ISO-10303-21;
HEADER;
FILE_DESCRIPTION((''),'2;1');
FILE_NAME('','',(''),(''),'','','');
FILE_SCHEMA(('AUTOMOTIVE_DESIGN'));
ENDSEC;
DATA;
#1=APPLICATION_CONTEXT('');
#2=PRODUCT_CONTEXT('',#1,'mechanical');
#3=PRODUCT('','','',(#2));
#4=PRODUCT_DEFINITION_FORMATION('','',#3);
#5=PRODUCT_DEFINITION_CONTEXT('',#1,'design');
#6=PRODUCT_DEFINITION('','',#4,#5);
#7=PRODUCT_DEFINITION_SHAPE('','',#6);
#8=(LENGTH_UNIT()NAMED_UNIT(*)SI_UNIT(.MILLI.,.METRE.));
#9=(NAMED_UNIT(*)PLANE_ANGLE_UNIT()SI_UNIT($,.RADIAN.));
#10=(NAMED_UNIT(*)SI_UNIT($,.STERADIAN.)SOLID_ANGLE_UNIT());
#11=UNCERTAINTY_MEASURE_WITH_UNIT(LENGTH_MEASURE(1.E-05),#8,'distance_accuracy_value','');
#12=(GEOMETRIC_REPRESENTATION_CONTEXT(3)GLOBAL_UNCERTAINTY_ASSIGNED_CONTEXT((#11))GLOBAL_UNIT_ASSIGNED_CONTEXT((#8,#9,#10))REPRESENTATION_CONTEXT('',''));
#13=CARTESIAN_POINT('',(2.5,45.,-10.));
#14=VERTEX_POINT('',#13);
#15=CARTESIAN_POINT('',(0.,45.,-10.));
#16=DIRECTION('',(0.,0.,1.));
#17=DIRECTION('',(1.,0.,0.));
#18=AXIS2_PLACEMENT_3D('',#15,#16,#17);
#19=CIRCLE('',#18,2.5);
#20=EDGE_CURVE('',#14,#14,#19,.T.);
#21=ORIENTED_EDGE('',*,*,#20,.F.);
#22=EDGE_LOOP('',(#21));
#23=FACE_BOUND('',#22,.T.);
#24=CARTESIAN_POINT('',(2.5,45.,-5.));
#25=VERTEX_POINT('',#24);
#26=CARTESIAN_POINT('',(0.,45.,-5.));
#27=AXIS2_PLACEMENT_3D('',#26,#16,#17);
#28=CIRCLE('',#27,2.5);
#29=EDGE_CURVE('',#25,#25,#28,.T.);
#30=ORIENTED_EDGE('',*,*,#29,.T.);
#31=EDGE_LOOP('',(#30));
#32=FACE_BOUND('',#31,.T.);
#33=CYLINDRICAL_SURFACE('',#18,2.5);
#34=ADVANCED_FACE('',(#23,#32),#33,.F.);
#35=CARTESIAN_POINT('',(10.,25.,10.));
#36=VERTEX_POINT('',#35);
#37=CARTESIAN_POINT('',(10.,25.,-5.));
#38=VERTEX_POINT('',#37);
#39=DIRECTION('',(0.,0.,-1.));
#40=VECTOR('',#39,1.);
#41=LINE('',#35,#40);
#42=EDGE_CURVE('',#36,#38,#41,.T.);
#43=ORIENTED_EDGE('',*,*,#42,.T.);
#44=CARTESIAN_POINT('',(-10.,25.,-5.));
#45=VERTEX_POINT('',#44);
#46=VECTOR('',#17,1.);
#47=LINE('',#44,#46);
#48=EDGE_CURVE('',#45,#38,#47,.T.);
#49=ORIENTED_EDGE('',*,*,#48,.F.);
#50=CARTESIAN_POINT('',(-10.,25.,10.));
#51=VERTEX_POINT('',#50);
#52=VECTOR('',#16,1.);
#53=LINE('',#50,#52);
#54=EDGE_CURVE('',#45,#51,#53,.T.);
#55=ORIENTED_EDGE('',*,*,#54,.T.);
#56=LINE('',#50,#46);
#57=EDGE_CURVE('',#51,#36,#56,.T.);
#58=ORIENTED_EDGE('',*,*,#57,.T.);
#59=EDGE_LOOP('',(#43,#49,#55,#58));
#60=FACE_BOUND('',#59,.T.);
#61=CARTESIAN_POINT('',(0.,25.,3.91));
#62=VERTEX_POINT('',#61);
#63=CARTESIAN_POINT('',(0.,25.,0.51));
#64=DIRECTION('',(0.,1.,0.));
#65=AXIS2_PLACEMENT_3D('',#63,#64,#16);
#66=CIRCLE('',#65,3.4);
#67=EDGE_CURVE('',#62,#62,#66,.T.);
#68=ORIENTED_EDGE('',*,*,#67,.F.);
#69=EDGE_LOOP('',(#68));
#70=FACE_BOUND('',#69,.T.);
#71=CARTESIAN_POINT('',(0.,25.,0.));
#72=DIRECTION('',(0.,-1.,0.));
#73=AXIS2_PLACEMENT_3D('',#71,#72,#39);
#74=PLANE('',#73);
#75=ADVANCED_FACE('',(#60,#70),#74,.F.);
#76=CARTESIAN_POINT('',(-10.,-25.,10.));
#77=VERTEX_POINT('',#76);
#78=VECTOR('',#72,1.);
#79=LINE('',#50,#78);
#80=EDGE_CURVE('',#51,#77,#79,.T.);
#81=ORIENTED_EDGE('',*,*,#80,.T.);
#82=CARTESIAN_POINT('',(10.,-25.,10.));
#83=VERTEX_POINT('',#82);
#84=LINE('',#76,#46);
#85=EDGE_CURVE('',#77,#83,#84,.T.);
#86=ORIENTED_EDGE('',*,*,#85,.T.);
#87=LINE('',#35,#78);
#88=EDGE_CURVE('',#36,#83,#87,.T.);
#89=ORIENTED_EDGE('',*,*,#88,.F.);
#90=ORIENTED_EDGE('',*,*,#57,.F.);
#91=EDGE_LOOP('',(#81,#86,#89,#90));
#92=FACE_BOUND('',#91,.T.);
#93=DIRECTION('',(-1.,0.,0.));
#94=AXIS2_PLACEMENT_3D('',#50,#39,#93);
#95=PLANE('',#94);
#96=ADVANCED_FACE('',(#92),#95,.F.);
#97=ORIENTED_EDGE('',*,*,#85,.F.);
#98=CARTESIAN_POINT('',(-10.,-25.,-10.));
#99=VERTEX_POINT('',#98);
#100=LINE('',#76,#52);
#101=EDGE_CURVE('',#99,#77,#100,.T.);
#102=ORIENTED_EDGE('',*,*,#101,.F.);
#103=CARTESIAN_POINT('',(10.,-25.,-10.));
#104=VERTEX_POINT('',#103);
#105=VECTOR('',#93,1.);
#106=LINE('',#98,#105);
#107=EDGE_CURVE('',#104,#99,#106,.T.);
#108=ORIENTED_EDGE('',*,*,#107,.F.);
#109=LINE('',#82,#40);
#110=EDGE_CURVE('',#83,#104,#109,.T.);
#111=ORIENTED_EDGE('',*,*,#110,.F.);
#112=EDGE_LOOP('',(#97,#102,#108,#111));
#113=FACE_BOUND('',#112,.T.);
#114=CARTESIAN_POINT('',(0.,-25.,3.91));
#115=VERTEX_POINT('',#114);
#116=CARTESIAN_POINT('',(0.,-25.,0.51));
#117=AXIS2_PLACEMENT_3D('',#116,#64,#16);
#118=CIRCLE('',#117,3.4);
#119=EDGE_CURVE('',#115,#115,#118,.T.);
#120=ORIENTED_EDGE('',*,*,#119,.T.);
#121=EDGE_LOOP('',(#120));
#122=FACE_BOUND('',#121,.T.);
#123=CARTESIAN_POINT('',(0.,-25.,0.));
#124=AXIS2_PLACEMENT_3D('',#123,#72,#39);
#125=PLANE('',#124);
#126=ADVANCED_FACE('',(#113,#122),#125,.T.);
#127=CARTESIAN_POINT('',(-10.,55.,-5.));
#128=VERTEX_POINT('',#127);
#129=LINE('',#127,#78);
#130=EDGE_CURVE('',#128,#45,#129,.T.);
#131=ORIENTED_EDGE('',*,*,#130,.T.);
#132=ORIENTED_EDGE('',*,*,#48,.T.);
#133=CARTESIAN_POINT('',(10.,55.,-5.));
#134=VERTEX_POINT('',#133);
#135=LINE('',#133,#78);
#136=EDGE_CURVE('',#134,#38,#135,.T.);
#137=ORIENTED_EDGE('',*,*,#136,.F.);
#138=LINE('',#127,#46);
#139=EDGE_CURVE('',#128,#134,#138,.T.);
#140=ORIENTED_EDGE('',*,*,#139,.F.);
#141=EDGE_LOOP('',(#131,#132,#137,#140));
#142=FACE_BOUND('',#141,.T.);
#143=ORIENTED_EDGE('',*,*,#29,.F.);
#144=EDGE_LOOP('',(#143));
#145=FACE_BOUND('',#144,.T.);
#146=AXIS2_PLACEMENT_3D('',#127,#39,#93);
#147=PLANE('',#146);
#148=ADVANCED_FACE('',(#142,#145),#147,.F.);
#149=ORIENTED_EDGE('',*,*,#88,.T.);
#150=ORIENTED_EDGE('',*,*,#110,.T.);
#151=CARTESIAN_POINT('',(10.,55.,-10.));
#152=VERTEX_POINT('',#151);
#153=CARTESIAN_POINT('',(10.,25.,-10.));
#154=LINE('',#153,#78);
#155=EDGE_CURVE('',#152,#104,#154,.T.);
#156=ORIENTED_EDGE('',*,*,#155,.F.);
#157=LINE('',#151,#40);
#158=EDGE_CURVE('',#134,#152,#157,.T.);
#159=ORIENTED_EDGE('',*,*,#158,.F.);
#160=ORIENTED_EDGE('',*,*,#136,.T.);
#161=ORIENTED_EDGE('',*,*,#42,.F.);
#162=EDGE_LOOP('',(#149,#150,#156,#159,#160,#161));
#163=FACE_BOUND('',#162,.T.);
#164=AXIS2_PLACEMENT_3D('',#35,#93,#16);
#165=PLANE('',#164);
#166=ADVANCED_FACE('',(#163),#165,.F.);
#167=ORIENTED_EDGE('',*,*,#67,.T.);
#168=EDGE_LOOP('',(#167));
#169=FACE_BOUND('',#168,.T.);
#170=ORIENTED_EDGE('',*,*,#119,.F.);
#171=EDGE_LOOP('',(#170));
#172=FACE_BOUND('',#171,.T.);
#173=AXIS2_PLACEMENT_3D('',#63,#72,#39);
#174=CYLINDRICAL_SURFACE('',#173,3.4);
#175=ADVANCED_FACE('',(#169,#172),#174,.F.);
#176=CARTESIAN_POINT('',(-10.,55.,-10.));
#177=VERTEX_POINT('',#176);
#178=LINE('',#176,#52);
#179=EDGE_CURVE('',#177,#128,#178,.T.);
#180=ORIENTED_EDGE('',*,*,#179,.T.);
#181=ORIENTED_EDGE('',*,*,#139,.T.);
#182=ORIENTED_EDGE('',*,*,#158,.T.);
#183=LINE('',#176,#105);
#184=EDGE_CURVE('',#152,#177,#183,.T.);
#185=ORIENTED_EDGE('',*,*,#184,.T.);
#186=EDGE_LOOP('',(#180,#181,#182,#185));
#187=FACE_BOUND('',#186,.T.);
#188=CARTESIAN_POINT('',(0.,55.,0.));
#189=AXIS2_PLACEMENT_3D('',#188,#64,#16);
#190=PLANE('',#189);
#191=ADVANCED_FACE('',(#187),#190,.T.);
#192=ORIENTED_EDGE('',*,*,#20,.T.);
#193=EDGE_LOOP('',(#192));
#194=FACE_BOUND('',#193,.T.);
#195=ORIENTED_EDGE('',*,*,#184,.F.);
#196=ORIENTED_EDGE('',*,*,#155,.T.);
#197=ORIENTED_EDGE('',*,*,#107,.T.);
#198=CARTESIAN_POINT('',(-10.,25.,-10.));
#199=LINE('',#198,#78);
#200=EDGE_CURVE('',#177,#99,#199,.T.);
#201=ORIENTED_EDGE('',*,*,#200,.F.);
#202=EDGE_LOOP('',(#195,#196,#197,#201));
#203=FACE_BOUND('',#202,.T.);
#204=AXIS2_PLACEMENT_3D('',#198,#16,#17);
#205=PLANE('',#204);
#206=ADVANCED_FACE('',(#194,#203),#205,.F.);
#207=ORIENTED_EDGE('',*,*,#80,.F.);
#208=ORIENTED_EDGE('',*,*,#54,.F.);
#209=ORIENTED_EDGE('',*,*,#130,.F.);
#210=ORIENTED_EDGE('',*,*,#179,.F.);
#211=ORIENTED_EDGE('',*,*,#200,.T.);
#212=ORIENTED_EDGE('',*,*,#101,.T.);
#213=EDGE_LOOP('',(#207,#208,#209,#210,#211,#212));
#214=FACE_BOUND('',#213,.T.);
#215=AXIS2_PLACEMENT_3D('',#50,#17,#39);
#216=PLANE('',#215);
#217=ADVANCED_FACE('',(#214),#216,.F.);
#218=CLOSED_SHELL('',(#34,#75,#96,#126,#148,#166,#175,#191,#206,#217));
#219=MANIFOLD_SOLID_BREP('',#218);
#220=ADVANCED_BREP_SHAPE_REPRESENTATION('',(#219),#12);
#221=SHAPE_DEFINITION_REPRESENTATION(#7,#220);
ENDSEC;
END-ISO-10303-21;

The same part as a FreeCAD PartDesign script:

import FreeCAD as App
import Part
import Sketcher
Q = App.Units.Quantity


def add_polygon(sketch, points):
    """Adds a closed chain of lines whose ends are joined by coincident constraints."""
    first, n = sketch.GeometryCount, len(points)
    for a, b in zip(points, points[1:] + points[:1]):
        sketch.addGeometry(Part.LineSegment(App.Vector(*a, 0), App.Vector(*b, 0)), False)
    for i in range(n):
        sketch.addConstraint(Sketcher.Constraint("Coincident", first + i, 2, first + (i + 1) % n, 1))

doc = App.newDocument("Part")
params = doc.addObject("Spreadsheet::Sheet", "Params")
for row, (alias, value) in enumerate([
    ("sketch1_diameter", "6.8 mm"),
    ("sketch1_width", "20 mm"),
    ("pad1_length", "50 mm"),
    ("sketch2_width", "20 mm"),
    ("sketch2_height", "5 mm"),
    ("pad2_length", "30 mm"),
    ("sketch3_diameter", "5 mm"),
], start=1):
    params.set(f"A{row}", alias)
    params.set(f"B{row}", "=" + value)
    params.setAlias(f"B{row}", alias)

body = doc.addObject("PartDesign::Body", "Body")

sketch1 = body.newObject("Sketcher::SketchObject", "Sketch")
sketch1.AttachmentSupport = (doc.getObject("XZ_Plane"), [""])
sketch1.MapMode = "FlatFace"
add_polygon(sketch1, [(-10, -10), (-10, 10), (10, 10), (10, -10)])
sketch1.addGeometry(Part.Circle(App.Vector(0, 0.51, 0), App.Vector(0, 0, 1), 3.4), False)
sketch1.addConstraint(Sketcher.Constraint("Vertical", 0))
sketch1.addConstraint(Sketcher.Constraint("Horizontal", 1))
sketch1.addConstraint(Sketcher.Constraint("Vertical", 2))
sketch1.addConstraint(Sketcher.Constraint("Horizontal", 3))
sketch1.addConstraint(Sketcher.Constraint("Symmetric", 0, 2, 2, 2, -1, 1))
sketch1.addConstraint(Sketcher.Constraint("PointOnObject", 4, 3, -2))
sketch1.addConstraint(Sketcher.Constraint("Equal", 3, 0))
sketch1.addConstraint(Sketcher.Constraint("Diameter", 4, Q("6.8 mm")))
sketch1.addConstraint(Sketcher.Constraint("DistanceX", 1, 1, 1, 2, Q("20 mm")))
sketch1.addConstraint(Sketcher.Constraint("DistanceY", -1, 1, 4, 3, Q("0.51 mm")))
sketch1.setExpression("Constraints[11]", "Params.sketch1_diameter")
sketch1.setExpression("Constraints[12]", "Params.sketch1_width")
pad1 = body.newObject("PartDesign::Pad", "Pad")
pad1.Profile = sketch1
pad1.setExpression("Length", "Params.pad1_length")
pad1.Midplane = True

sketch2 = body.newObject("Sketcher::SketchObject", "Sketch001")
sketch2.AttachmentSupport = (doc.getObject("XZ_Plane"), [""])
sketch2.MapMode = "FlatFace"
sketch2.AttachmentOffset = App.Placement(App.Vector(0, 0, -25), App.Rotation())
add_polygon(sketch2, [(-10, -10), (-10, -5), (10, -5), (10, -10)])
sketch2.addConstraint(Sketcher.Constraint("Vertical", 0))
sketch2.addConstraint(Sketcher.Constraint("Horizontal", 1))
sketch2.addConstraint(Sketcher.Constraint("Vertical", 2))
sketch2.addConstraint(Sketcher.Constraint("Horizontal", 3))
sketch2.addConstraint(Sketcher.Constraint("DistanceX", 1, 1, 1, 2, Q("20 mm")))
sketch2.addConstraint(Sketcher.Constraint("DistanceY", 0, 1, 0, 2, Q("5 mm")))
sketch2.addConstraint(Sketcher.Constraint("DistanceX", 0, 2, -1, 1, Q("10 mm")))
sketch2.addConstraint(Sketcher.Constraint("DistanceY", 0, 2, -1, 1, Q("5 mm")))
sketch2.setExpression("Constraints[8]", "Params.sketch2_width")
sketch2.setExpression("Constraints[9]", "Params.sketch2_height")
pad2 = body.newObject("PartDesign::Pad", "Pad001")
pad2.Profile = sketch2
pad2.setExpression("Length", "Params.pad2_length")
pad2.Reversed = True

sketch3 = body.newObject("Sketcher::SketchObject", "Sketch002")
sketch3.AttachmentSupport = (doc.getObject("XY_Plane"), [""])
sketch3.MapMode = "FlatFace"
sketch3.AttachmentOffset = App.Placement(App.Vector(0, 0, -5), App.Rotation())
sketch3.addGeometry(Part.Circle(App.Vector(0, 45, 0), App.Vector(0, 0, 1), 2.5), False)
sketch3.addConstraint(Sketcher.Constraint("PointOnObject", 0, 3, -2))
sketch3.addConstraint(Sketcher.Constraint("Diameter", 0, Q("5 mm")))
sketch3.addConstraint(Sketcher.Constraint("DistanceY", -1, 1, 0, 3, Q("45 mm")))
sketch3.setExpression("Constraints[1]", "Params.sketch3_diameter")
pocket1 = body.newObject("PartDesign::Pocket", "Pocket")
pocket1.Profile = sketch3
pocket1.Type = "ThroughAll"

doc.recompute()
